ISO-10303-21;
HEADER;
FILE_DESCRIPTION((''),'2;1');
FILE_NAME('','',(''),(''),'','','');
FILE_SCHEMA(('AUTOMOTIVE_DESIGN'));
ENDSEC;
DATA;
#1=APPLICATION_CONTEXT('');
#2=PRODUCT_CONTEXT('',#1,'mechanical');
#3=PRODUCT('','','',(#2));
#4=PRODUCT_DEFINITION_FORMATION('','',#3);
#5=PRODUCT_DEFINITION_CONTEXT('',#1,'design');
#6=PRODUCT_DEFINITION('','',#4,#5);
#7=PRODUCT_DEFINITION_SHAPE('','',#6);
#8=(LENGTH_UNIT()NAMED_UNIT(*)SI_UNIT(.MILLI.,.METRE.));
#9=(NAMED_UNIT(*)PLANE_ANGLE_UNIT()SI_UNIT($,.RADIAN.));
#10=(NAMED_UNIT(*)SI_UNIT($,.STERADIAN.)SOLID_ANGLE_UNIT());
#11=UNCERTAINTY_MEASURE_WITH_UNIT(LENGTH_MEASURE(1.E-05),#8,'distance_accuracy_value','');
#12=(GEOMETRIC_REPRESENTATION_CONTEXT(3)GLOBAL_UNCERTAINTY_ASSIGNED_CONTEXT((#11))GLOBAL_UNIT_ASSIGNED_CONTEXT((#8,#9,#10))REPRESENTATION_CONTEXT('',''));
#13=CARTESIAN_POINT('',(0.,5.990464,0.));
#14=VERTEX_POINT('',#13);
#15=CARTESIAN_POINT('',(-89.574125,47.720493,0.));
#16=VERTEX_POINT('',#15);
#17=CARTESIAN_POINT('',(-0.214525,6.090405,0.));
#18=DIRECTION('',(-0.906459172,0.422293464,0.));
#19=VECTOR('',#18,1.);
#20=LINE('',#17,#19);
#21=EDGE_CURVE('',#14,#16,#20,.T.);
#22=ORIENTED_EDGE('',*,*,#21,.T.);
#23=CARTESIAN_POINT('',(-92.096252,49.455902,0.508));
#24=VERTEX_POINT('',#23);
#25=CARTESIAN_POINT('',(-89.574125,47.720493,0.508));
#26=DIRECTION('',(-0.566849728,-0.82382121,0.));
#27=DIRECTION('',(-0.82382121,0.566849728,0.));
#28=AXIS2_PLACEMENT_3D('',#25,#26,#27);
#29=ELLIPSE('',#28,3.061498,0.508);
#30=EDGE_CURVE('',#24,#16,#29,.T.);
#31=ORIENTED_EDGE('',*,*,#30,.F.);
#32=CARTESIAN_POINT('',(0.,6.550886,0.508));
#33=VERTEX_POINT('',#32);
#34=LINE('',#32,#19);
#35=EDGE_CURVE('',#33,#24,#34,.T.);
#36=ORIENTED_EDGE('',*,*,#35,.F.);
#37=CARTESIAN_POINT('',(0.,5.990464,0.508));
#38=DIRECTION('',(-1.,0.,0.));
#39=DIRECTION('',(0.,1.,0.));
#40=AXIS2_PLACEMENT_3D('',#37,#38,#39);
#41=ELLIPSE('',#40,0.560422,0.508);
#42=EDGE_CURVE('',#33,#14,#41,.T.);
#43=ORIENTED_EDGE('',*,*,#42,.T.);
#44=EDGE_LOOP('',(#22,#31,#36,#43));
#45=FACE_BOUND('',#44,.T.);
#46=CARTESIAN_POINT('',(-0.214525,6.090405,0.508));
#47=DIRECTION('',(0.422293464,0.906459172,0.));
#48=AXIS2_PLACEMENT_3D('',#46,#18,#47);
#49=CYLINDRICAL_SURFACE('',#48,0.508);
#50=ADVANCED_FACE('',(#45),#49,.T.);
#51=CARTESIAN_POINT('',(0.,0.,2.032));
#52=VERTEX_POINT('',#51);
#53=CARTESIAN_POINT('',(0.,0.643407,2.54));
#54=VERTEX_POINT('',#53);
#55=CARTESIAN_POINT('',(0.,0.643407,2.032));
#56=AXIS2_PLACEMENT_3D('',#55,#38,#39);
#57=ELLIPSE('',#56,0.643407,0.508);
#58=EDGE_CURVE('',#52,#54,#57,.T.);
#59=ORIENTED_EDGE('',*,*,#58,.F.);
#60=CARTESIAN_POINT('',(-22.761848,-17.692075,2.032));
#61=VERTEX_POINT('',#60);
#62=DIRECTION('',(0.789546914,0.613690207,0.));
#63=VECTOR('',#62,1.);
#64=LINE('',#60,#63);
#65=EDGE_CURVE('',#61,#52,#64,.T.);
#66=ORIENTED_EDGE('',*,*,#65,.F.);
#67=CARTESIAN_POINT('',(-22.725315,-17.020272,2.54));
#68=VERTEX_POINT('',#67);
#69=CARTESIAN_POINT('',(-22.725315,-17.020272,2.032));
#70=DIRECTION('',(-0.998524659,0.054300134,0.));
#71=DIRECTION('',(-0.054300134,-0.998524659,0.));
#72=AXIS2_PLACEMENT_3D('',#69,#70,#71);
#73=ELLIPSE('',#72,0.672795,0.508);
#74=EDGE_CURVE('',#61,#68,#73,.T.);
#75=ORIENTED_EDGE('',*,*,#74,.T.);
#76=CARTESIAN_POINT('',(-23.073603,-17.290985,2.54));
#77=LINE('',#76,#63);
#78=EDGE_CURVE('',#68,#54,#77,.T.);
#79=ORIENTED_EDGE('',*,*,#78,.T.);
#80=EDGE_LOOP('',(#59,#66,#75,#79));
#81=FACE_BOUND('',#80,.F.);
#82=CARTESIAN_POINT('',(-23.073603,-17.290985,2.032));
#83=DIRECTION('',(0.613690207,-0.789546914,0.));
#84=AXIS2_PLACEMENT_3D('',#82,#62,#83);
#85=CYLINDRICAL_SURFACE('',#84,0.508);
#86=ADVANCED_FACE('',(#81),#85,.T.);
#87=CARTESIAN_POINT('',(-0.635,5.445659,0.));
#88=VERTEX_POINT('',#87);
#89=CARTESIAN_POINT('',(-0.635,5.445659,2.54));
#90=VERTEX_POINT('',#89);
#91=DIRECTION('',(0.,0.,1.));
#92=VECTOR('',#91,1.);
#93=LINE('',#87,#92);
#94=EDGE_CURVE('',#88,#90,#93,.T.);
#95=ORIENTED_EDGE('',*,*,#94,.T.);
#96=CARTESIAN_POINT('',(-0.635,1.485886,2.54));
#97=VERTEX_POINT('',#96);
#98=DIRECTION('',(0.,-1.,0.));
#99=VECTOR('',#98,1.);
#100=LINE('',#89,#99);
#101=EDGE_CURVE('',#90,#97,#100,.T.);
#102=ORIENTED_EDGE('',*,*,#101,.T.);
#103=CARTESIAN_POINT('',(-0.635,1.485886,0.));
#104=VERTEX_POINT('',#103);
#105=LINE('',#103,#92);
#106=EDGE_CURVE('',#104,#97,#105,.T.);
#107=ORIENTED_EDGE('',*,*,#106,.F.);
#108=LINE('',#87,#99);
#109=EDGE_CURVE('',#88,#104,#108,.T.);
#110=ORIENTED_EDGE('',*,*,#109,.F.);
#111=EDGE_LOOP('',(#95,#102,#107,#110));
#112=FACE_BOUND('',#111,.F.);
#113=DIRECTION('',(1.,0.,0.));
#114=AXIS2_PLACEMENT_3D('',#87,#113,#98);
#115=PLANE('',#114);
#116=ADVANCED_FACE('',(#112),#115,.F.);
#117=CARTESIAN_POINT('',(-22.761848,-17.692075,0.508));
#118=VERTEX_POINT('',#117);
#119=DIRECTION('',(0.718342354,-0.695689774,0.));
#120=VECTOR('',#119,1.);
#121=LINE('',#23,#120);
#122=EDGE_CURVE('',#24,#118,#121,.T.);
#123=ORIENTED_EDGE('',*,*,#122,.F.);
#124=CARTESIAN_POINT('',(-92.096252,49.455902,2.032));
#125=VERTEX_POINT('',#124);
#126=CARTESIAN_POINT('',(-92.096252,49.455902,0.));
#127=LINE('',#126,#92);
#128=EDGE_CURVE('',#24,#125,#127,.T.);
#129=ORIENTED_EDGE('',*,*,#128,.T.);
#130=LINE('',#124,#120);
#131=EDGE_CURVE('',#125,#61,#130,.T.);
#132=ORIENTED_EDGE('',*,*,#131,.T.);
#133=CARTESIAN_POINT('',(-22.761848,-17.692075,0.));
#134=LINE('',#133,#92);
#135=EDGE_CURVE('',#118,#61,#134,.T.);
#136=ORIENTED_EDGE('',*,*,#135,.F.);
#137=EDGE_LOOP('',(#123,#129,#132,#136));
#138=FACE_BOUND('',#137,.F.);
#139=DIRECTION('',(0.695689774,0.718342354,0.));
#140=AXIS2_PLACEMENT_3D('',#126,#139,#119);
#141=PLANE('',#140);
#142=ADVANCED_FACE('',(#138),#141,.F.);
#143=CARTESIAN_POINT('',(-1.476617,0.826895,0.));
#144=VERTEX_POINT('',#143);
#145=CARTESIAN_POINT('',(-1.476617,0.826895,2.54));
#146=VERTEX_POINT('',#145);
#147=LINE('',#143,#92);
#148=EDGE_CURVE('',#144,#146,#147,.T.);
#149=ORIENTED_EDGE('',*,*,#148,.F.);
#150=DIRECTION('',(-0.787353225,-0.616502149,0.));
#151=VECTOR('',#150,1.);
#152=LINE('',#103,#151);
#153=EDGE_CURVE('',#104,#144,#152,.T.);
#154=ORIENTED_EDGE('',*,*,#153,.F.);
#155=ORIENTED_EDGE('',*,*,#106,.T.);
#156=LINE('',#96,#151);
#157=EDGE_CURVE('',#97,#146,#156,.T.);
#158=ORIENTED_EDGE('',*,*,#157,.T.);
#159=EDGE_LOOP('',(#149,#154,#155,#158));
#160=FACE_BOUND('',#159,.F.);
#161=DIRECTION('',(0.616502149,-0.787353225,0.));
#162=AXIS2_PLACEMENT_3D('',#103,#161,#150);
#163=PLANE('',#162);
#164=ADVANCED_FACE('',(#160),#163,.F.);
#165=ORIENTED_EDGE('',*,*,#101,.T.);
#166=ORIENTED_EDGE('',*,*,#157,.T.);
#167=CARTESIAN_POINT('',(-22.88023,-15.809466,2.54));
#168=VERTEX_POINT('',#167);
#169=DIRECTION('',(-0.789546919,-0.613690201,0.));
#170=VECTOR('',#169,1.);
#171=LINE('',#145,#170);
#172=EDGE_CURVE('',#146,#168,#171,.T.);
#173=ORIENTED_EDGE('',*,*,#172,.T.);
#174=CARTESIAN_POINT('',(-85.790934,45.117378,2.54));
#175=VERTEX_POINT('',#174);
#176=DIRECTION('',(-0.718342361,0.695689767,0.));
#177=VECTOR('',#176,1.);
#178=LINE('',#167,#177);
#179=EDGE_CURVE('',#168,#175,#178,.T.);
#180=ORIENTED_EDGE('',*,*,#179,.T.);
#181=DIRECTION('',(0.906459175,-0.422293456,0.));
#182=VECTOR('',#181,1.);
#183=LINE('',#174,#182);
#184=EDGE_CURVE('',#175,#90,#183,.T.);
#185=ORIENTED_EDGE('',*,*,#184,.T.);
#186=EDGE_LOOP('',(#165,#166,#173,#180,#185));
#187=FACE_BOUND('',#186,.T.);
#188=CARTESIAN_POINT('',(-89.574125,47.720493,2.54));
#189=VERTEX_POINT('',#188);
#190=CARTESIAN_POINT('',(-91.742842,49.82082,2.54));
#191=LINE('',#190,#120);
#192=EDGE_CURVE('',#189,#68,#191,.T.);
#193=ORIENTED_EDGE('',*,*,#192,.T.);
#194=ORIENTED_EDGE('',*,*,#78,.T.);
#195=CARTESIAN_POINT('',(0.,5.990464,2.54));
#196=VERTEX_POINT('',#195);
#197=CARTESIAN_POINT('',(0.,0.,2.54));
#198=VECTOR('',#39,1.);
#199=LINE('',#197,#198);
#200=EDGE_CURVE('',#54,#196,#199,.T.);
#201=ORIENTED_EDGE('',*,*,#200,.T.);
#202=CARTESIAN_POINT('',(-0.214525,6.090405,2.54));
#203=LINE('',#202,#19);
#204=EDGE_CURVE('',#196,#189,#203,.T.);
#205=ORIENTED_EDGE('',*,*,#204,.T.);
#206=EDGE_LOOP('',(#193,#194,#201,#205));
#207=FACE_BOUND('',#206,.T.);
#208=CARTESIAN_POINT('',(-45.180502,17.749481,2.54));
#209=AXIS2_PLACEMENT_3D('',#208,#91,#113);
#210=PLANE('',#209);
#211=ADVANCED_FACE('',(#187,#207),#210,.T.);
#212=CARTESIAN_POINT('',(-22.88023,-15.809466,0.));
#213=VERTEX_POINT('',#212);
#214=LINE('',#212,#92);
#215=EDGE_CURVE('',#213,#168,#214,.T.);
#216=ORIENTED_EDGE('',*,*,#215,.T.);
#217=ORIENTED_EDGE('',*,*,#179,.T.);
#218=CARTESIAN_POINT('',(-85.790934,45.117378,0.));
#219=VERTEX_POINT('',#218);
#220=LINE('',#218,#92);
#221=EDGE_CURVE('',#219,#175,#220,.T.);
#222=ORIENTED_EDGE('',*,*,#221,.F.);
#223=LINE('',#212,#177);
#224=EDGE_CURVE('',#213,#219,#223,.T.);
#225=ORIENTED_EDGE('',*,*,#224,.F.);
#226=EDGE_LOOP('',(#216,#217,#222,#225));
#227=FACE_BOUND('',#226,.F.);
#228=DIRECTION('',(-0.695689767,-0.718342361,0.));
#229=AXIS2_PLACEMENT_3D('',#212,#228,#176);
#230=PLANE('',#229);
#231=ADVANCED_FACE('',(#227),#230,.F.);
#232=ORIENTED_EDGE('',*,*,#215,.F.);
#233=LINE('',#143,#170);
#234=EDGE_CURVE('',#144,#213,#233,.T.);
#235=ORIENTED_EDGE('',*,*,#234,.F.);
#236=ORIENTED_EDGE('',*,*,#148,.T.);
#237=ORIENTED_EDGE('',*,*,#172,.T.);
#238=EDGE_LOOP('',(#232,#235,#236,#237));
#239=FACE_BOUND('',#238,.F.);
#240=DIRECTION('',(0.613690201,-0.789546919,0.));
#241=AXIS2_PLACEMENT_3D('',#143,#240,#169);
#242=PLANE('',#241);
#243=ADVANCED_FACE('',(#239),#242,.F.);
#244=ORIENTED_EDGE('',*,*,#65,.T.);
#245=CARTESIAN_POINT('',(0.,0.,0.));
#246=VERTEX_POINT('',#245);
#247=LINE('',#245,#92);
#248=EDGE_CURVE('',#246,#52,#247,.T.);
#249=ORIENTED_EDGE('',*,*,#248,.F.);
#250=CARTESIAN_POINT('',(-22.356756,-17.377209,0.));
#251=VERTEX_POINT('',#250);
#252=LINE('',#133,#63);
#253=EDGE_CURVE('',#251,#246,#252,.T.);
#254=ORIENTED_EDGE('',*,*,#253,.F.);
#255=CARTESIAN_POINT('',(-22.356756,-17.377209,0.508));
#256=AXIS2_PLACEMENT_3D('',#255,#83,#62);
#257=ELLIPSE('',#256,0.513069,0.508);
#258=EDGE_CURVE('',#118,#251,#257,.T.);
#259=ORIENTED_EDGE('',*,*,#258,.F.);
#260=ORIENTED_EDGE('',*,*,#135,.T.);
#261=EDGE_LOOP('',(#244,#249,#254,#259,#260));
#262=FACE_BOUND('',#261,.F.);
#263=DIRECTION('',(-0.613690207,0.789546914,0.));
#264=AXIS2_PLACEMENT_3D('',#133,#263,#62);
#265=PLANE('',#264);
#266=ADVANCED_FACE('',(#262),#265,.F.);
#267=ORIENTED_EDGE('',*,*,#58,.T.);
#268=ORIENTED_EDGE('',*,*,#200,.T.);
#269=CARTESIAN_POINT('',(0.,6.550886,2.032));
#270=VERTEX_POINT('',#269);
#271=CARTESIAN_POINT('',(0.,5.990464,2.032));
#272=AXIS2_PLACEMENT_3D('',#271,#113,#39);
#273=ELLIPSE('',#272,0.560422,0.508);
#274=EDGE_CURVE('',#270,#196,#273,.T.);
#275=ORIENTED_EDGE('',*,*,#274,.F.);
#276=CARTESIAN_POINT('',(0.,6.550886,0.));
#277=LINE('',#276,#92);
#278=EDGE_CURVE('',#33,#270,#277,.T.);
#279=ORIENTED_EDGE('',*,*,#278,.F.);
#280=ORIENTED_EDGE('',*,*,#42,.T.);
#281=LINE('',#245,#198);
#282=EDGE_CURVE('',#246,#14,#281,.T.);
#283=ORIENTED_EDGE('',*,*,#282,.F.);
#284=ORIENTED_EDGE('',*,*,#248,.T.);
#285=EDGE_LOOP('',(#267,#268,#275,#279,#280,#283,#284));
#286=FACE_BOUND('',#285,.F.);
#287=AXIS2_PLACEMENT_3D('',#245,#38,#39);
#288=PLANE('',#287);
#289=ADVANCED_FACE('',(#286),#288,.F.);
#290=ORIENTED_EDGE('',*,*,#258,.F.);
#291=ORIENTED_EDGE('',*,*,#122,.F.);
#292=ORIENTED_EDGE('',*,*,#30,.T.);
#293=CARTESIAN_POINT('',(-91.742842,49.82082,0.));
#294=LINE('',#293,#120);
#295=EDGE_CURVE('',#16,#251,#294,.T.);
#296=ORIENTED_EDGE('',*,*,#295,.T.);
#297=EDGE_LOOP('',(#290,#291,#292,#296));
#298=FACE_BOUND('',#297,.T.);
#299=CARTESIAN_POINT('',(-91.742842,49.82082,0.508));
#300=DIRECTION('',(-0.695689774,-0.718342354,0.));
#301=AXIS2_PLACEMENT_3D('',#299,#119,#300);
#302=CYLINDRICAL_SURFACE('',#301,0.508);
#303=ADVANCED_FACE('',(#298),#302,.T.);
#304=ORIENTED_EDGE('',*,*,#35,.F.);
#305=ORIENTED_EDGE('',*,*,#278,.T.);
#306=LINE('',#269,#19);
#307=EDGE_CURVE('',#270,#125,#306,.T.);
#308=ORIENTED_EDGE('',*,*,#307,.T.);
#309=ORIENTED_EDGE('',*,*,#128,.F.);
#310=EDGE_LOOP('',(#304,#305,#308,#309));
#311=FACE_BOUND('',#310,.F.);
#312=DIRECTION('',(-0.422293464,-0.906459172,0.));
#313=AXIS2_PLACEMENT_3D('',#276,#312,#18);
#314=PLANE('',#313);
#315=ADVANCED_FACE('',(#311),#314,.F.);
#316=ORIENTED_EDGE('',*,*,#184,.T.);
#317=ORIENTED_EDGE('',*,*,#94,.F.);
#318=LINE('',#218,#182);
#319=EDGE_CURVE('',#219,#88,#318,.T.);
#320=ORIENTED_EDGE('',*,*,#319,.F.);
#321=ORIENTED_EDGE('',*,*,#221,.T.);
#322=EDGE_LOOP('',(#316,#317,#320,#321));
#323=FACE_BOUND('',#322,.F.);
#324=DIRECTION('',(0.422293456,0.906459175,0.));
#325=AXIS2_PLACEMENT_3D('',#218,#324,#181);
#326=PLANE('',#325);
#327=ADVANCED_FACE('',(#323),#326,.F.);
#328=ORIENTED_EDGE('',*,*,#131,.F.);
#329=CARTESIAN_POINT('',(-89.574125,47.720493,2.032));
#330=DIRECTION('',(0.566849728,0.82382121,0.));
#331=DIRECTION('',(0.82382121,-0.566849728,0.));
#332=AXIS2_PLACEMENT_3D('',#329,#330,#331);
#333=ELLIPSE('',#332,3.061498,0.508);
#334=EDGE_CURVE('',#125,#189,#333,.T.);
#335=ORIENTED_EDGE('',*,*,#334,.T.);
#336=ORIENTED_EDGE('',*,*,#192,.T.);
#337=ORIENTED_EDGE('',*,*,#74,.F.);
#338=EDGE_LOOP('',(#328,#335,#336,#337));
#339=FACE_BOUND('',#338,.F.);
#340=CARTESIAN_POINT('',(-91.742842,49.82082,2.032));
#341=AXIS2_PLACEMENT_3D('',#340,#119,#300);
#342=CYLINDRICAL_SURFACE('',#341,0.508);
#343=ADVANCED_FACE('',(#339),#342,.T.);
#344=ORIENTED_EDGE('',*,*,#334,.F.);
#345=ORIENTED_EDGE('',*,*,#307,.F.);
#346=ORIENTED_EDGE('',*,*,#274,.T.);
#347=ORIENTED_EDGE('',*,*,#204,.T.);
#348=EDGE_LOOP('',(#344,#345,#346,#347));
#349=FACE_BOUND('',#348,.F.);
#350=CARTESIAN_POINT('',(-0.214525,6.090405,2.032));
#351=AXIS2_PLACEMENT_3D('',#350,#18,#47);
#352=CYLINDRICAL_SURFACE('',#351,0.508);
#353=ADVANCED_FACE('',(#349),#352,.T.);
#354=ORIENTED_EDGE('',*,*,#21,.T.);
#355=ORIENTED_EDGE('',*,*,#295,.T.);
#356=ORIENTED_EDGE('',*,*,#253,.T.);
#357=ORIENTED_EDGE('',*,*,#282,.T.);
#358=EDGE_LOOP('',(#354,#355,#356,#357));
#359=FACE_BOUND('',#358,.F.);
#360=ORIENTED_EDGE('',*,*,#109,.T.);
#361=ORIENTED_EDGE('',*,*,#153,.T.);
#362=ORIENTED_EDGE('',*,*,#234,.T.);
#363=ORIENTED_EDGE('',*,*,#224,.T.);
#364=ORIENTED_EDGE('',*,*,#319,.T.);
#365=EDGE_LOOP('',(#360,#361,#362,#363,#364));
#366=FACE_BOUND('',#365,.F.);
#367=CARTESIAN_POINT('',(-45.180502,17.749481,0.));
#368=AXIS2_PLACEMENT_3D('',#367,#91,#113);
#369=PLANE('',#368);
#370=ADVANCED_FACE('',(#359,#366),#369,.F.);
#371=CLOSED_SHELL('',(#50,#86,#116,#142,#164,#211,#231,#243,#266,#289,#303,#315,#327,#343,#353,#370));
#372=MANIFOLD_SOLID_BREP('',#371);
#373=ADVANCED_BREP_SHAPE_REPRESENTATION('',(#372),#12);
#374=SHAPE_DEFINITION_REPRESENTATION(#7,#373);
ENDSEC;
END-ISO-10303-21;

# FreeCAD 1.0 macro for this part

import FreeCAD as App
import Part
import Sketcher
from FreeCAD import Vector
Q = App.Units.Quantity


def edges_at(feature, points):
    """Names of the edges that pass closest to the given points."""
    edges = feature.Shape.Edges
    near = lambda p: min(range(len(edges)), key=lambda i: edges[i].distToShape(Part.Vertex(*p))[0])
    return sorted({f"Edge{near(p) + 1}" for p in points})

doc = App.newDocument("Part")
body = doc.addObject("PartDesign::Body", "Body")

sketch1 = body.newObject("Sketcher::SketchObject", "Sketch")
sketch1.AttachmentSupport = (doc.getObject("XY_Plane"), [""])
sketch1.MapMode = "FlatFace"
sketch1.addGeometry([
    Part.LineSegment(Vector(-22.8, -17.7, 0), Vector(0, 0, 0)),
    Part.LineSegment(Vector(0, 0, 0), Vector(0, 6.6, 0)),
    Part.LineSegment(Vector(0, 6.6, 0), Vector(-92.1, 49.5, 0)),
    Part.LineSegment(Vector(-92.1, 49.5, 0), Vector(-22.8, -17.7, 0)),
    Part.LineSegment(Vector(-22.9, -15.8, 0), Vector(-85.8, 45.1, 0)),
    Part.LineSegment(Vector(-85.8, 45.1, 0), Vector(-0.6, 5.4, 0)),
    Part.LineSegment(Vector(-0.6, 5.4, 0), Vector(-0.6, 1.5, 0)),
    Part.LineSegment(Vector(-0.6, 1.5, 0), Vector(-1.5, 0.8, 0)),
    Part.LineSegment(Vector(-1.5, 0.8, 0), Vector(-22.9, -15.8, 0)),
], False)
sketch1.addConstraint([
    Sketcher.Constraint("Coincident", 0, 2, 1, 1),
    Sketcher.Constraint("Coincident", 1, 2, 2, 1),
    Sketcher.Constraint("Coincident", 2, 2, 3, 1),
    Sketcher.Constraint("Coincident", 3, 2, 0, 1),
    Sketcher.Constraint("Coincident", 4, 2, 5, 1),
    Sketcher.Constraint("Coincident", 5, 2, 6, 1),
    Sketcher.Constraint("Coincident", 6, 2, 7, 1),
    Sketcher.Constraint("Coincident", 7, 2, 8, 1),
    Sketcher.Constraint("Coincident", 8, 2, 4, 1),
    Sketcher.Constraint("Vertical", 1),
    Sketcher.Constraint("Vertical", 6),
    Sketcher.Constraint("Coincident", 0, 2, -1, 1),
    Sketcher.Constraint("Parallel", 3, 4),
    Sketcher.Constraint("Parallel", 2, 5),
    Sketcher.Constraint("Parallel", 0, 8),
    Sketcher.Constraint("Distance", 2, Q("4 in")),
    Sketcher.Constraint("Distance", 3, Q("3.8 in")),
    Sketcher.Constraint("Distance", 0, Q("1.135 in")),
    Sketcher.Constraint("DistanceX", 5, 2, -1, 1, Q("0.025 in")),
    Sketcher.Constraint("DistanceY", 6, 2, 1, 2, 5.065),
    Sketcher.Constraint("Distance", 7, 1.068919),
    Sketcher.Constraint("Distance", 8, 27.108728),
    Sketcher.Constraint("DistanceY", 1, 1, 1, 2, 6.550886),
    Sketcher.Constraint("DistanceY", 6, 2, 6, 1, 3.959773),
    Sketcher.Constraint("DistanceX", 3, 2, -1, 1, 22.761848),
    Sketcher.Constraint("DistanceY", -1, 1, 4, 2, 45.117378),
])
pad1 = body.newObject("PartDesign::Pad", "Pad")
pad1.Profile = sketch1
pad1.Length = Q("0.1 in")
doc.recompute()

fillet = body.newObject("PartDesign::Fillet", "Fillet")
fillet.Base = (pad1, edges_at(pad1, [
    (-57.429, 15.882, 2.54),
    (-11.381, -8.846, 2.54),
    (-46.048, 28.003, 2.54),
    (-46.048, 28.003, 0),
    (-57.429, 15.882, 0),
]))
fillet.Radius = Q("0.02 in")

doc.recompute()
